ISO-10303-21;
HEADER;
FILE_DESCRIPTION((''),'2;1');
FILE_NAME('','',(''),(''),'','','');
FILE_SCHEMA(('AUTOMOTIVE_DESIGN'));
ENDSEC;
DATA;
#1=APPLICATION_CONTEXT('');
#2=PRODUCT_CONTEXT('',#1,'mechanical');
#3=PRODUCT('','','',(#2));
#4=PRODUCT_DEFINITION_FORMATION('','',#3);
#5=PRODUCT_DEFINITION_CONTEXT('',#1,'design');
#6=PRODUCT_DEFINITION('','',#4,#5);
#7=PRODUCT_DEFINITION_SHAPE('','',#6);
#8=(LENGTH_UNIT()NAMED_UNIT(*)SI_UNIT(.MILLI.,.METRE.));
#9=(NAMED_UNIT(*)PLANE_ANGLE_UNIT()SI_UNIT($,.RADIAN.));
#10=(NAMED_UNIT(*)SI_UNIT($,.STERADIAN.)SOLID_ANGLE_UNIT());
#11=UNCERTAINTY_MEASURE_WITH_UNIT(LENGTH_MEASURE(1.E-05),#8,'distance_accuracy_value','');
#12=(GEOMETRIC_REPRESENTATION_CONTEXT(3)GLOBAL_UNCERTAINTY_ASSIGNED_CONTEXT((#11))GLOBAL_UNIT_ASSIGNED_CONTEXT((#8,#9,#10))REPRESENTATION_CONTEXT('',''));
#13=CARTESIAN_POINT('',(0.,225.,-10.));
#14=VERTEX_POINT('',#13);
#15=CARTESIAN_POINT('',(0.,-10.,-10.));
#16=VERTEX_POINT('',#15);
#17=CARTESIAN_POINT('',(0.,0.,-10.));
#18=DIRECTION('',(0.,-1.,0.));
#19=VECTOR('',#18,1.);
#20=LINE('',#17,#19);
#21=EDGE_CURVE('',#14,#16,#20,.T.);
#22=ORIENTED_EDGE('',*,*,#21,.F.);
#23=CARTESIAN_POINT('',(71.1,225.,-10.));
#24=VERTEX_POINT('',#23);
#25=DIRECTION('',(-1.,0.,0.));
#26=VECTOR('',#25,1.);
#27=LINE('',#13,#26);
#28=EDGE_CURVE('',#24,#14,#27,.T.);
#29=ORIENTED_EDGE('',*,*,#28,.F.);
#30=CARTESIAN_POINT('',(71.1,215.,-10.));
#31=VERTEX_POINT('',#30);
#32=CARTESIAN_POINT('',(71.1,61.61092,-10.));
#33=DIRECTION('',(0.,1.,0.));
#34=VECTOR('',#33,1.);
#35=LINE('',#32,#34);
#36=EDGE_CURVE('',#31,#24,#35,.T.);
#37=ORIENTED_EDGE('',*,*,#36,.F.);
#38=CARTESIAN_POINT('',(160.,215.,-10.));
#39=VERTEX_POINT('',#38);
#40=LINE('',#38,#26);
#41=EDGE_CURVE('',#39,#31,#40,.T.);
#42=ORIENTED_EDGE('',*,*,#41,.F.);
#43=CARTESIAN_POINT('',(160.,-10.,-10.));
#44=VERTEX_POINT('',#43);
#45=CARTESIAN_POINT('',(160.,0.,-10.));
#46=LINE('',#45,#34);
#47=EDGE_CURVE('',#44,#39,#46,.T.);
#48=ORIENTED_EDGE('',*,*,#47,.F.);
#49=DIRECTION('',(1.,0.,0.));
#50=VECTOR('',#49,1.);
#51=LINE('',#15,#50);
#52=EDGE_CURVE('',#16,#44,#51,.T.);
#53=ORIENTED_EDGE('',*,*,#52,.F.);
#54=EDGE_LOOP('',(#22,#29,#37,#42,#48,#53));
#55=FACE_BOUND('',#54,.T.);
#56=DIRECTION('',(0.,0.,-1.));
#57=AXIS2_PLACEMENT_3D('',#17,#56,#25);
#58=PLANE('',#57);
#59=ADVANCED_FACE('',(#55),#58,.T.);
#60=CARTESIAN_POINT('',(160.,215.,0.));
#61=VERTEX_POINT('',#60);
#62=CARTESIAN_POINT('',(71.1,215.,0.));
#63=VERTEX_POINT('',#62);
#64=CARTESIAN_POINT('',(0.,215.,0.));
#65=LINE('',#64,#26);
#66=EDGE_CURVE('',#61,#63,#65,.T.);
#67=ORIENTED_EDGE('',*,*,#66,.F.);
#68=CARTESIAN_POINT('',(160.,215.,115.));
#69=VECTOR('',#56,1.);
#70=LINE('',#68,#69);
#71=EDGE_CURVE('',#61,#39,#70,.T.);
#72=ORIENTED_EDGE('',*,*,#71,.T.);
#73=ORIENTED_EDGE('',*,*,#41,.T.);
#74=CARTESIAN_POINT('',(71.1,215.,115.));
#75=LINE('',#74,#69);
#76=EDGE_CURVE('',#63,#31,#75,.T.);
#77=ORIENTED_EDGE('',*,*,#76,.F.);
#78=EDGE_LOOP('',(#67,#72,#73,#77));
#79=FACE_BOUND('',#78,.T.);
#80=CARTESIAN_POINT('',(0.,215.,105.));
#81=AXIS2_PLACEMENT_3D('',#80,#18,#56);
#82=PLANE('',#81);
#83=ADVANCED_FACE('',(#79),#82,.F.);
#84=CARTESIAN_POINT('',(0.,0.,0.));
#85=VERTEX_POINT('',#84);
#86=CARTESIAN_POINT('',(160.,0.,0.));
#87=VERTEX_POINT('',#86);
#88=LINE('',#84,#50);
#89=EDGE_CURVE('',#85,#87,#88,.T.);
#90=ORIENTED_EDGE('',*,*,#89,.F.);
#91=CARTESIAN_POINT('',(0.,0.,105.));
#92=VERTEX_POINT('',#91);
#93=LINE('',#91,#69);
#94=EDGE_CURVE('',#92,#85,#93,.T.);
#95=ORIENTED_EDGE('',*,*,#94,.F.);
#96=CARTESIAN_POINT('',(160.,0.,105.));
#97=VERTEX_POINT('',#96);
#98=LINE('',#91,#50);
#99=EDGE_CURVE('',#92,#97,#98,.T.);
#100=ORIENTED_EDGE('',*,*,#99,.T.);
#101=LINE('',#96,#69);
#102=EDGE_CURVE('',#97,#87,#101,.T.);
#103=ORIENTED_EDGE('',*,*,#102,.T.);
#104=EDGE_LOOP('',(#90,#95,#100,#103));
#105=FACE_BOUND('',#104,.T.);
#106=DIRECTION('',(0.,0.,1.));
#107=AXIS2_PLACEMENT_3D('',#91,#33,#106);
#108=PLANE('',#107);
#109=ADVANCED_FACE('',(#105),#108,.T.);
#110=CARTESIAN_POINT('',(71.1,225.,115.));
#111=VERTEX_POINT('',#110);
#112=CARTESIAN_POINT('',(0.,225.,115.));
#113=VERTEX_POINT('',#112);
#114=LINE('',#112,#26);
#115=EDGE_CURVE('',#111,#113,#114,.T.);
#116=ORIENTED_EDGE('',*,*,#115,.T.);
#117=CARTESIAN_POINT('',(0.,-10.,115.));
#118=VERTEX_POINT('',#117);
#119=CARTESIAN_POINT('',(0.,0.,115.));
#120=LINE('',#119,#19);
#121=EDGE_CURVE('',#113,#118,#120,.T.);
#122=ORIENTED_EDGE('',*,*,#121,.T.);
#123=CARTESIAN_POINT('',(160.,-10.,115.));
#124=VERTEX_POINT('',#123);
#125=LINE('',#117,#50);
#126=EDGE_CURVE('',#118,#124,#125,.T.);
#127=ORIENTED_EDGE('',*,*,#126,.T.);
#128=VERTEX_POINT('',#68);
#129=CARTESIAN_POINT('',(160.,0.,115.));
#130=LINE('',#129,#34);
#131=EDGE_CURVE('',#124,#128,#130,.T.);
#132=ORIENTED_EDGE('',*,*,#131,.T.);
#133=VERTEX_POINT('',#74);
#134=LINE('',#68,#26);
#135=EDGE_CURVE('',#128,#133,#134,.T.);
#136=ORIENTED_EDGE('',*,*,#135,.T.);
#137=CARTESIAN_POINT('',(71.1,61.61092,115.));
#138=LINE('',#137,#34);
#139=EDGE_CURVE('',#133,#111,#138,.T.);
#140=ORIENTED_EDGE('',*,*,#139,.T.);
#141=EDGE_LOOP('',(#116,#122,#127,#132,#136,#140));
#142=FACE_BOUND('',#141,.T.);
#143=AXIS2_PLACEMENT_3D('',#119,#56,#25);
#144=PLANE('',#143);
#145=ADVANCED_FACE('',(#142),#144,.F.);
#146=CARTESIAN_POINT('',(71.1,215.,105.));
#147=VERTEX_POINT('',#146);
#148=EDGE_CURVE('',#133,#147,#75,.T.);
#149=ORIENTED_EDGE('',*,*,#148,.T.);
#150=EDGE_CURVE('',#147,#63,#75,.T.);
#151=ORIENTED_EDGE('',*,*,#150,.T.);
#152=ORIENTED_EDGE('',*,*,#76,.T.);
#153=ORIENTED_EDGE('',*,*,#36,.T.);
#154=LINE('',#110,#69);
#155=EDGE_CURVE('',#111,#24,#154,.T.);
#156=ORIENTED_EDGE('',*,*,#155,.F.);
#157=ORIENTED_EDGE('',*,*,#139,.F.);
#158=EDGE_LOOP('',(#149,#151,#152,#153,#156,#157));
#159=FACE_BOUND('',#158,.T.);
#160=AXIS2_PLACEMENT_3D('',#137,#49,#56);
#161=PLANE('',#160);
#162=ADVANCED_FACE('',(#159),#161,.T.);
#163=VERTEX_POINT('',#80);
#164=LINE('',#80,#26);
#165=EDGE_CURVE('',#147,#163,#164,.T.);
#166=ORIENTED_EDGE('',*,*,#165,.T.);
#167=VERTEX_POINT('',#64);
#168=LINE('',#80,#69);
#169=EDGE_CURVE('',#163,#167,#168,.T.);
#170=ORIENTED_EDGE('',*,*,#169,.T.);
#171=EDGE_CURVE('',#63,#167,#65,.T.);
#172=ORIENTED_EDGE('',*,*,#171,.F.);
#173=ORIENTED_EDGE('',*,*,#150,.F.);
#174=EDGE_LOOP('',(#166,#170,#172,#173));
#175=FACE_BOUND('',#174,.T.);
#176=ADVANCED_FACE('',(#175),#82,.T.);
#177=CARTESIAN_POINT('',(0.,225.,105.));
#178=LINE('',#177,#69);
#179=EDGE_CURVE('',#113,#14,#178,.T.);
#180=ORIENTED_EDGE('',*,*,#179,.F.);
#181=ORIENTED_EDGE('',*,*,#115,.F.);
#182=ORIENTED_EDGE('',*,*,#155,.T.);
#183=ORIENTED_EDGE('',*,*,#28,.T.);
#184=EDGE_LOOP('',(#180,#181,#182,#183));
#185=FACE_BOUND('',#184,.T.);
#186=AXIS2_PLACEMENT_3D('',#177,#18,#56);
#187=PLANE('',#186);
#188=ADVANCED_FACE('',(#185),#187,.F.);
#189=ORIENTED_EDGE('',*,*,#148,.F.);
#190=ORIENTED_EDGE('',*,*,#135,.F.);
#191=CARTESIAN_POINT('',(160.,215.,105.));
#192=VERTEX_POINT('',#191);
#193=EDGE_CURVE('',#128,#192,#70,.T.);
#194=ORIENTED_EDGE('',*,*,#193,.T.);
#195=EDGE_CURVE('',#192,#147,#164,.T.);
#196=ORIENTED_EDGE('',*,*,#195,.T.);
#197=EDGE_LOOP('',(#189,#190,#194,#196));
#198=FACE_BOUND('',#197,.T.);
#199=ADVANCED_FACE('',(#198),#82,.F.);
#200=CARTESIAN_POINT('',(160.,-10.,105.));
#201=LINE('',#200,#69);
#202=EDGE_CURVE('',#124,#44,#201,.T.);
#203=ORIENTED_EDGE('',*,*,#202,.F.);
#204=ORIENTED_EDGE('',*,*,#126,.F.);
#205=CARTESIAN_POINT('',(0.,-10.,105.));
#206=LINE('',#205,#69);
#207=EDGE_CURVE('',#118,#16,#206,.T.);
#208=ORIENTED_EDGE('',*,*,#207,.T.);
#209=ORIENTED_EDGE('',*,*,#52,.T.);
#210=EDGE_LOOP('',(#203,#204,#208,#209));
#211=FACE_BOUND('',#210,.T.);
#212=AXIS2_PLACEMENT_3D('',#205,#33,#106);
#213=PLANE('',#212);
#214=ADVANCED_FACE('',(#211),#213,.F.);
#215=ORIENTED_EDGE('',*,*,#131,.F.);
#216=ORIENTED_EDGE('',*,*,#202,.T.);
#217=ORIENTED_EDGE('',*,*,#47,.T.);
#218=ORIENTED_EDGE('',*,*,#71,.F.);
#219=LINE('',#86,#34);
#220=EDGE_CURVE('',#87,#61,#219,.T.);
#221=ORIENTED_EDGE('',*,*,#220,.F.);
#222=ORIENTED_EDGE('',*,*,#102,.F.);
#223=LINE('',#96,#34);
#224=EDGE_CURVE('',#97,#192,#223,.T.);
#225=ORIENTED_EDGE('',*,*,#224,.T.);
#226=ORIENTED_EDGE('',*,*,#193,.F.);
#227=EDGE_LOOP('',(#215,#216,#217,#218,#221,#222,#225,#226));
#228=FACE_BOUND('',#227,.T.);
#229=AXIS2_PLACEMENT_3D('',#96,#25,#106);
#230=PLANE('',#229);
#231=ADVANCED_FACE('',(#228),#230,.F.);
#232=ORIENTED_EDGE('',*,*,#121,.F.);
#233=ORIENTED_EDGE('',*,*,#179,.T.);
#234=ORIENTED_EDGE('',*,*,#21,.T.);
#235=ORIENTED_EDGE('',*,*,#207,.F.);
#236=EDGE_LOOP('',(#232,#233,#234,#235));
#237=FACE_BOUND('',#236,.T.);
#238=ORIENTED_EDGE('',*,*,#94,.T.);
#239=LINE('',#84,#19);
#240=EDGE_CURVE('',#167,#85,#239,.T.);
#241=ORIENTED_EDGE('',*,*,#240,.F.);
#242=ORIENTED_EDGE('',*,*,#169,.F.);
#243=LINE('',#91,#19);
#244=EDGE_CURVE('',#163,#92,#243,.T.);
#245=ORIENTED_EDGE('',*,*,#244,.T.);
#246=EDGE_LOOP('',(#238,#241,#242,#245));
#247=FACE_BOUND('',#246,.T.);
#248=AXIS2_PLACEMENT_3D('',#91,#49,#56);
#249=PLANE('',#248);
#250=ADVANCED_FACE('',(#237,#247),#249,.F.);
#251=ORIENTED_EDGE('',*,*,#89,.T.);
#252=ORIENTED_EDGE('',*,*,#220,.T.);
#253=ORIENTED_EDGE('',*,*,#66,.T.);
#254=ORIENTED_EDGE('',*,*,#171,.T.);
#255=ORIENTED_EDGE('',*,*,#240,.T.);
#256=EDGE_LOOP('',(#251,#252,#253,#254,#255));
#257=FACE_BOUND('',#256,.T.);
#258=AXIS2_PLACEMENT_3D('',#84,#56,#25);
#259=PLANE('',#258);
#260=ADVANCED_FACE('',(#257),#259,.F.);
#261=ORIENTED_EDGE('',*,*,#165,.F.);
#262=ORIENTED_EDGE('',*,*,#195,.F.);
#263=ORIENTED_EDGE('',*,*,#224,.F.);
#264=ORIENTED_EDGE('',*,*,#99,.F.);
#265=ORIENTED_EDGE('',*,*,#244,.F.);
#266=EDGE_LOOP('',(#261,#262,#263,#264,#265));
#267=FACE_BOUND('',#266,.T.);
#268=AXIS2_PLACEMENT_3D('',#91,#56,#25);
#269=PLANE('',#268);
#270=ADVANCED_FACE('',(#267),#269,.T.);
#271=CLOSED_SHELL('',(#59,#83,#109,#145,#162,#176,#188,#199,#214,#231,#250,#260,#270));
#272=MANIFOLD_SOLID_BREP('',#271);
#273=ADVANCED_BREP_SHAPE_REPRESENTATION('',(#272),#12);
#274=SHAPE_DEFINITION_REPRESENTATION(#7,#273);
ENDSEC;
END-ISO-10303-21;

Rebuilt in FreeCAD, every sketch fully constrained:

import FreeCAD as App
import Part
import Sketcher
from FreeCAD import Vector
Q = App.Units.Quantity


def faces_at(feature, points):
    """Names of the faces that lie closest to the given points."""
    faces = feature.Shape.Faces
    near = lambda p: min(range(len(faces)), key=lambda i: faces[i].distToShape(Part.Vertex(*p))[0])
    return sorted({f"Face{near(p) + 1}" for p in points})

doc = App.newDocument("Part")
body = doc.addObject("PartDesign::Body", "Body")

sketch1 = doc.addObject("Sketcher::SketchObject", "Sketch")
body.addObject(sketch1)
sketch1.AttachmentSupport = (doc.XY_Plane, [""])
sketch1.MapMode = "FlatFace"
sketch1.addGeometry([
    Part.LineSegment(Vector(0, 215, 0), Vector(0, 0, 0)),
    Part.LineSegment(Vector(0, 0, 0), Vector(160, 0, 0)),
    Part.LineSegment(Vector(160, 0, 0), Vector(160, 215, 0)),
    Part.LineSegment(Vector(160, 215, 0), Vector(0, 215, 0)),
], False)
sketch1.addConstraint([
    Sketcher.Constraint("Coincident", 0, 2, 1, 1),
    Sketcher.Constraint("Coincident", 1, 2, 2, 1),
    Sketcher.Constraint("Coincident", 2, 2, 3, 1),
    Sketcher.Constraint("Coincident", 3, 2, 0, 1),
    Sketcher.Constraint("Vertical", 0),
    Sketcher.Constraint("Horizontal", 1),
    Sketcher.Constraint("Vertical", 2),
    Sketcher.Constraint("Horizontal", 3),
    Sketcher.Constraint("Coincident", 0, 2, -1, 1),
    Sketcher.Constraint("DistanceX", 1, 1, 1, 2, Q("160 mm")),
    Sketcher.Constraint("DistanceY", 0, 2, 0, 1, Q("215 mm")),
])
pad1 = doc.addObject("PartDesign::Pad", "Pad")
body.addObject(pad1)
pad1.Profile = sketch1
pad1.Length = 105
doc.recompute()

thickness = doc.addObject("PartDesign::Thickness", "Thickness")
body.addObject(thickness)
thickness.Base = (pad1, faces_at(pad1, [(160, 107.5, 52.5), (0, 107.5, 52.5)]))
thickness.Value = 10
thickness.Reversed = False
thickness.Join = "Intersection"

sketch2 = doc.addObject("Sketcher::SketchObject", "Sketch001")
body.addObject(sketch2)
sketch2.AttachmentSupport = (doc.XZ_Plane, [""])
sketch2.MapMode = "FlatFace"
sketch2.AttachmentOffset = App.Placement(Vector(0, 0, -225), App.Rotation())
sketch2.addGeometry([
    Part.LineSegment(Vector(71, 115, 0), Vector(71, -10, 0)),
    Part.LineSegment(Vector(71, -10, 0), Vector(160, -10, 0)),
    Part.LineSegment(Vector(160, -10, 0), Vector(160, 115, 0)),
    Part.LineSegment(Vector(160, 115, 0), Vector(71, 115, 0)),
], False)
sketch2.addConstraint([
    Sketcher.Constraint("Coincident", 0, 2, 1, 1),
    Sketcher.Constraint("Coincident", 1, 2, 2, 1),
    Sketcher.Constraint("Coincident", 2, 2, 3, 1),
    Sketcher.Constraint("Coincident", 3, 2, 0, 1),
    Sketcher.Constraint("Vertical", 0),
    Sketcher.Constraint("Horizontal", 1),
    Sketcher.Constraint("Vertical", 2),
    Sketcher.Constraint("Horizontal", 3),
    Sketcher.Constraint("DistanceY", 0, 2, 0, 1, Q("125 mm")),
    Sketcher.Constraint("DistanceX", 1, 1, 1, 2, Q("88.9 mm")),
    Sketcher.Constraint("DistanceY", 0, 2, -1, 1, Q("10 mm")),
    Sketcher.Constraint("DistanceX", -1, 1, 1, 2, Q("160 mm")),
])
pocket1 = doc.addObject("PartDesign::Pocket", "Pocket")
body.addObject(pocket1)
pocket1.Profile = sketch2
pocket1.Length = 10
pocket1.Reversed = True

doc.recompute()
